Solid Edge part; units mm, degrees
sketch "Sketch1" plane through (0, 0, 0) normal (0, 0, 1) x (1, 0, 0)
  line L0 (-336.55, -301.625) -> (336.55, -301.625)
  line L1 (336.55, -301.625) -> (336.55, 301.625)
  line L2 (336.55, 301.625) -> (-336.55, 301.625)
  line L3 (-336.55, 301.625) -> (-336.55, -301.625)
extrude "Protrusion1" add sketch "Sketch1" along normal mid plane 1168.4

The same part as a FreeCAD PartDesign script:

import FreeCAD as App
import Part
import Sketcher
from FreeCAD import Vector
Q = App.Units.Quantity


def add_polygon(sketch, points):
    """Adds a closed chain of lines whose ends are joined by coincident constraints."""
    first, n = sketch.GeometryCount, len(points)
    for a, b in zip(points, points[1:] + points[:1]):
        sketch.addGeometry(Part.LineSegment(App.Vector(*a, 0), App.Vector(*b, 0)), False)
    for i in range(n):
        sketch.addConstraint(Sketcher.Constraint("Coincident", first + i, 2, first + (i + 1) % n, 1))

doc = App.newDocument("Part")
body = doc.addObject("PartDesign::Body", "Body")

# Sketch on XY plane
sketch1 = doc.addObject("Sketcher::SketchObject", "Sketch")
body.addObject(sketch1)
sketch1.AttachmentSupport = (doc.XY_Plane, [""])
sketch1.MapMode = "FlatFace"
add_polygon(sketch1, [(-337, 302), (-337, -302), (337, -302), (337, 302)])  # lines 0-3
sketch1.addConstraint(Sketcher.Constraint("Vertical", 0))
sketch1.addConstraint(Sketcher.Constraint("Horizontal", 1))
sketch1.addConstraint(Sketcher.Constraint("Vertical", 2))
sketch1.addConstraint(Sketcher.Constraint("Horizontal", 3))
sketch1.addConstraint(Sketcher.Constraint("Symmetric", 0, 2, 2, 2, -1, 1))
sketch1.addConstraint(Sketcher.Constraint("DistanceX", 1, 1, 1, 2, Q("26.5 in")))
sketch1.addConstraint(Sketcher.Constraint("DistanceY", 0, 2, 0, 1, Q("23.75 in")))
pad1 = doc.addObject("PartDesign::Pad", "Pad")
body.addObject(pad1)
pad1.Profile = sketch1
pad1.Length = Q("46 in")
pad1.Midplane = True

doc.recompute()
